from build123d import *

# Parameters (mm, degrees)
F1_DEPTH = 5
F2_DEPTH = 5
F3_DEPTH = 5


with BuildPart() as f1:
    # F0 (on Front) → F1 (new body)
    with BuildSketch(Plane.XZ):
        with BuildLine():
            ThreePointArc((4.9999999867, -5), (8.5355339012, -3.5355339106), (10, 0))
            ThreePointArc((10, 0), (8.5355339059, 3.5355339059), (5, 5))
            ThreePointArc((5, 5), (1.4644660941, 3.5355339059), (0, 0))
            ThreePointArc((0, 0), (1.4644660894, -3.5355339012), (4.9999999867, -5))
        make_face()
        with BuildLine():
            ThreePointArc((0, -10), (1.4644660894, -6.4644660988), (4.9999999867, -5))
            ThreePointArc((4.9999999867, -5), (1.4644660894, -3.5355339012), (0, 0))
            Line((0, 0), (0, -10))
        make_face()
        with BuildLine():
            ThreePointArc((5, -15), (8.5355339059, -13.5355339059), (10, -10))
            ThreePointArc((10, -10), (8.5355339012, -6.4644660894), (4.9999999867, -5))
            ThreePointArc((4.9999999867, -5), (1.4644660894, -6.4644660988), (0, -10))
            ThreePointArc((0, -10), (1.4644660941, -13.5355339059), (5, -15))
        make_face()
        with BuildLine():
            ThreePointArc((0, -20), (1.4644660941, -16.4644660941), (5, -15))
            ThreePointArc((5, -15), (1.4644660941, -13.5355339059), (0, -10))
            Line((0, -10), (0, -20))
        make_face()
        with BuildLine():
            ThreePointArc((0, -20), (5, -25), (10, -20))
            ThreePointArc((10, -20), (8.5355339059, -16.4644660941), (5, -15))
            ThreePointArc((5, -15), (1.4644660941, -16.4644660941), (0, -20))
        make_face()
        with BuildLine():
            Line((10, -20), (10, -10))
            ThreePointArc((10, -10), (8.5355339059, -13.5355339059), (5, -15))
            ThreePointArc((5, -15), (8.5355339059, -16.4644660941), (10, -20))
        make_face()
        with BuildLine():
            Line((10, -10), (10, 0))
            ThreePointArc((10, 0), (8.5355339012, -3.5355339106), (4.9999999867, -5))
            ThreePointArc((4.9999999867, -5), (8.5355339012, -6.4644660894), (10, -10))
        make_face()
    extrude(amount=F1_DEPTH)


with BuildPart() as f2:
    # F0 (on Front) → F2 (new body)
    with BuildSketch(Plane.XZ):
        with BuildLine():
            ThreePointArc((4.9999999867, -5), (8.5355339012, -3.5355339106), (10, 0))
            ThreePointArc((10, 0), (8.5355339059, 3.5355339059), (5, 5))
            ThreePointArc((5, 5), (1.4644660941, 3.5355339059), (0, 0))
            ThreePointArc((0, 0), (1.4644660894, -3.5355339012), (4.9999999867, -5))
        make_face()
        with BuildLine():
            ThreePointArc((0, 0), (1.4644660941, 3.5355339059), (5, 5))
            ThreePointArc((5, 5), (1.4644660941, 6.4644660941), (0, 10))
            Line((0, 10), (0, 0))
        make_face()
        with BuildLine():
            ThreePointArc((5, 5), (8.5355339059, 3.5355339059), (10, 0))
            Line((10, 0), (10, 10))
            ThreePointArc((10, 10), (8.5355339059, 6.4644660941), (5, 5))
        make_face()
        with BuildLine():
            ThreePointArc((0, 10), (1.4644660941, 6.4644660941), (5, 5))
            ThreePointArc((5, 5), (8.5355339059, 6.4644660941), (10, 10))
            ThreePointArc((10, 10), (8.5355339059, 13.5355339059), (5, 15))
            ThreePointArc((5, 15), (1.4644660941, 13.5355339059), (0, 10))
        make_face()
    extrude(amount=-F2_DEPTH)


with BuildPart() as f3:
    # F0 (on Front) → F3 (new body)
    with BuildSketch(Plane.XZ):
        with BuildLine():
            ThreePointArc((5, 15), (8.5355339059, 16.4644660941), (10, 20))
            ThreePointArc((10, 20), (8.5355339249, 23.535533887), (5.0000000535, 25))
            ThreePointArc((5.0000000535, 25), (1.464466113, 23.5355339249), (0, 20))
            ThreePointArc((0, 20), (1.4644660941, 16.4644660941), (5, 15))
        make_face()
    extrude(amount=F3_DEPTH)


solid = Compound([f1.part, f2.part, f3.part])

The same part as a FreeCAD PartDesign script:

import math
import FreeCAD as App
import Part
import Sketcher

V = App.Vector
Q = App.Units.Quantity

doc = App.newDocument("Part")
body = doc.addObject("PartDesign::Body", "Body")

sketch1 = doc.addObject("Sketcher::SketchObject", "Sketch")
body.addObject(sketch1)
sketch1.AttachmentSupport = (doc.XZ_Plane, [""])
sketch1.MapMode = "FlatFace"
sketch1.addGeometry([
    Part.ArcOfCircle(Part.Circle(V(5, 0, 0), V(0, 0, 1), 5), math.radians(0), math.radians(90)),
    Part.ArcOfCircle(Part.Circle(V(5, 0, 0), V(0, 0, 1), 5), math.radians(90), math.radians(180)),
    Part.LineSegment(V(0, 0, 0), V(0, -20, 0)),
    Part.ArcOfCircle(Part.Circle(V(5, -20, 0), V(0, 0, 1), 5), math.radians(180), math.radians(360)),
    Part.LineSegment(V(10, -20, 0), V(10, 0, 0)),
], False)
sketch1.addConstraint([
    Sketcher.Constraint("Tangent", 0, 2, 1, 1),
    Sketcher.Constraint("Tangent", 1, 2, 2, 1),
    Sketcher.Constraint("Tangent", 2, 2, 3, 1),
    Sketcher.Constraint("Tangent", 3, 2, 4, 1),
    Sketcher.Constraint("Tangent", 4, 2, 0, 1),
    Sketcher.Constraint("Vertical", 2),
    Sketcher.Constraint("Vertical", 4),
    Sketcher.Constraint("Coincident", 1, 2, -1, 1),
    Sketcher.Constraint("Equal", 0, 1),
    Sketcher.Constraint("Vertical", 3, 3, 0, 2),
    Sketcher.Constraint("Radius", 0, Q("5 mm")),
    Sketcher.Constraint("DistanceY", 2, 2, 2, 1, Q("20 mm")),
])
pad1 = doc.addObject("PartDesign::Pad", "Pad")
body.addObject(pad1)
pad1.Profile = sketch1
pad1.Length = 5
body2 = doc.addObject("PartDesign::Body", "Body001")

sketch2 = doc.addObject("Sketcher::SketchObject", "Sketch001")
body2.addObject(sketch2)
sketch2.AttachmentSupport = (doc.getObject("XZ_Plane001"), [""])
sketch2.MapMode = "FlatFace"
sketch2.addGeometry([
    Part.ArcOfCircle(Part.Circle(V(5, 0, 0), V(0, 0, 1), 5), math.radians(-90), math.radians(0)),
    Part.LineSegment(V(10, 0, 0), V(10, 10, 0)),
    Part.ArcOfCircle(Part.Circle(V(5, 10, 0), V(0, 0, 1), 5), math.radians(0), math.radians(90)),
    Part.ArcOfCircle(Part.Circle(V(5, 10, 0), V(0, 0, 1), 5), math.radians(90), math.radians(180)),
    Part.LineSegment(V(0, 10, 0), V(0, 0, 0)),
    Part.ArcOfCircle(Part.Circle(V(5, 0, 0), V(0, 0, 1), 5), math.radians(180), math.radians(270)),
], False)
sketch2.addConstraint([
    Sketcher.Constraint("Tangent", 0, 2, 1, 1),
    Sketcher.Constraint("Tangent", 1, 2, 2, 1),
    Sketcher.Constraint("Tangent", 2, 2, 3, 1),
    Sketcher.Constraint("Tangent", 3, 2, 4, 1),
    Sketcher.Constraint("Tangent", 4, 2, 5, 1),
    Sketcher.Constraint("Tangent", 5, 2, 0, 1),
    Sketcher.Constraint("Vertical", 1),
    Sketcher.Constraint("Vertical", 4),
    Sketcher.Constraint("Coincident", 4, 2, -1, 1),
    Sketcher.Constraint("Equal", 0, 2),
    Sketcher.Constraint("Equal", 2, 3),
    Sketcher.Constraint("Vertical", 5, 3, 2, 2),
    Sketcher.Constraint("Vertical", 2, 2, 5, 2),
    Sketcher.Constraint("Radius", 0, Q("5 mm")),
    Sketcher.Constraint("DistanceY", 1, 1, 1, 2, Q("10 mm")),
])
pad2 = doc.addObject("PartDesign::Pad", "Pad001")
body2.addObject(pad2)
pad2.Profile = sketch2
pad2.Length = 5
pad2.Reversed = True
body3 = doc.addObject("PartDesign::Body", "Body002")

sketch3 = doc.addObject("Sketcher::SketchObject", "Sketch002")
body3.addObject(sketch3)
sketch3.AttachmentSupport = (doc.getObject("XZ_Plane002"), [""])
sketch3.MapMode = "FlatFace"
sketch3.addGeometry([
    Part.ArcOfCircle(Part.Circle(V(5, 20, 0), V(0, 0, 1), 5), math.radians(-90), math.radians(0)),
    Part.ArcOfCircle(Part.Circle(V(5, 20, 0), V(0, 0, 1), 5), math.radians(0), math.radians(90)),
    Part.ArcOfCircle(Part.Circle(V(5, 20, 0), V(0, 0, 1), 5), math.radians(90), math.radians(180)),
    Part.ArcOfCircle(Part.Circle(V(5, 20, 0), V(0, 0, 1), 5), math.radians(180), math.radians(270)),
], False)
sketch3.addConstraint([
    Sketcher.Constraint("Tangent", 0, 2, 1, 1),
    Sketcher.Constraint("Tangent", 1, 2, 2, 1),
    Sketcher.Constraint("Tangent", 2, 2, 3, 1),
    Sketcher.Constraint("Tangent", 3, 2, 0, 1),
    Sketcher.Constraint("Equal", 0, 1),
    Sketcher.Constraint("PointOnObject", 2, 2, -2),
    Sketcher.Constraint("Horizontal", 3, 3, 0, 2),
    Sketcher.Constraint("Horizontal", 0, 2, 2, 2),
    Sketcher.Constraint("Vertical", 3, 3, 1, 2),
    Sketcher.Constraint("Vertical", 1, 2, 3, 2),
    Sketcher.Constraint("Radius", 0, Q("5 mm")),
    Sketcher.Constraint("DistanceY", -1, 1, 0, 3, Q("20 mm")),
])
pad3 = doc.addObject("PartDesign::Pad", "Pad002")
body3.addObject(pad3)
pad3.Profile = sketch3
pad3.Length = 5

doc.recompute()
